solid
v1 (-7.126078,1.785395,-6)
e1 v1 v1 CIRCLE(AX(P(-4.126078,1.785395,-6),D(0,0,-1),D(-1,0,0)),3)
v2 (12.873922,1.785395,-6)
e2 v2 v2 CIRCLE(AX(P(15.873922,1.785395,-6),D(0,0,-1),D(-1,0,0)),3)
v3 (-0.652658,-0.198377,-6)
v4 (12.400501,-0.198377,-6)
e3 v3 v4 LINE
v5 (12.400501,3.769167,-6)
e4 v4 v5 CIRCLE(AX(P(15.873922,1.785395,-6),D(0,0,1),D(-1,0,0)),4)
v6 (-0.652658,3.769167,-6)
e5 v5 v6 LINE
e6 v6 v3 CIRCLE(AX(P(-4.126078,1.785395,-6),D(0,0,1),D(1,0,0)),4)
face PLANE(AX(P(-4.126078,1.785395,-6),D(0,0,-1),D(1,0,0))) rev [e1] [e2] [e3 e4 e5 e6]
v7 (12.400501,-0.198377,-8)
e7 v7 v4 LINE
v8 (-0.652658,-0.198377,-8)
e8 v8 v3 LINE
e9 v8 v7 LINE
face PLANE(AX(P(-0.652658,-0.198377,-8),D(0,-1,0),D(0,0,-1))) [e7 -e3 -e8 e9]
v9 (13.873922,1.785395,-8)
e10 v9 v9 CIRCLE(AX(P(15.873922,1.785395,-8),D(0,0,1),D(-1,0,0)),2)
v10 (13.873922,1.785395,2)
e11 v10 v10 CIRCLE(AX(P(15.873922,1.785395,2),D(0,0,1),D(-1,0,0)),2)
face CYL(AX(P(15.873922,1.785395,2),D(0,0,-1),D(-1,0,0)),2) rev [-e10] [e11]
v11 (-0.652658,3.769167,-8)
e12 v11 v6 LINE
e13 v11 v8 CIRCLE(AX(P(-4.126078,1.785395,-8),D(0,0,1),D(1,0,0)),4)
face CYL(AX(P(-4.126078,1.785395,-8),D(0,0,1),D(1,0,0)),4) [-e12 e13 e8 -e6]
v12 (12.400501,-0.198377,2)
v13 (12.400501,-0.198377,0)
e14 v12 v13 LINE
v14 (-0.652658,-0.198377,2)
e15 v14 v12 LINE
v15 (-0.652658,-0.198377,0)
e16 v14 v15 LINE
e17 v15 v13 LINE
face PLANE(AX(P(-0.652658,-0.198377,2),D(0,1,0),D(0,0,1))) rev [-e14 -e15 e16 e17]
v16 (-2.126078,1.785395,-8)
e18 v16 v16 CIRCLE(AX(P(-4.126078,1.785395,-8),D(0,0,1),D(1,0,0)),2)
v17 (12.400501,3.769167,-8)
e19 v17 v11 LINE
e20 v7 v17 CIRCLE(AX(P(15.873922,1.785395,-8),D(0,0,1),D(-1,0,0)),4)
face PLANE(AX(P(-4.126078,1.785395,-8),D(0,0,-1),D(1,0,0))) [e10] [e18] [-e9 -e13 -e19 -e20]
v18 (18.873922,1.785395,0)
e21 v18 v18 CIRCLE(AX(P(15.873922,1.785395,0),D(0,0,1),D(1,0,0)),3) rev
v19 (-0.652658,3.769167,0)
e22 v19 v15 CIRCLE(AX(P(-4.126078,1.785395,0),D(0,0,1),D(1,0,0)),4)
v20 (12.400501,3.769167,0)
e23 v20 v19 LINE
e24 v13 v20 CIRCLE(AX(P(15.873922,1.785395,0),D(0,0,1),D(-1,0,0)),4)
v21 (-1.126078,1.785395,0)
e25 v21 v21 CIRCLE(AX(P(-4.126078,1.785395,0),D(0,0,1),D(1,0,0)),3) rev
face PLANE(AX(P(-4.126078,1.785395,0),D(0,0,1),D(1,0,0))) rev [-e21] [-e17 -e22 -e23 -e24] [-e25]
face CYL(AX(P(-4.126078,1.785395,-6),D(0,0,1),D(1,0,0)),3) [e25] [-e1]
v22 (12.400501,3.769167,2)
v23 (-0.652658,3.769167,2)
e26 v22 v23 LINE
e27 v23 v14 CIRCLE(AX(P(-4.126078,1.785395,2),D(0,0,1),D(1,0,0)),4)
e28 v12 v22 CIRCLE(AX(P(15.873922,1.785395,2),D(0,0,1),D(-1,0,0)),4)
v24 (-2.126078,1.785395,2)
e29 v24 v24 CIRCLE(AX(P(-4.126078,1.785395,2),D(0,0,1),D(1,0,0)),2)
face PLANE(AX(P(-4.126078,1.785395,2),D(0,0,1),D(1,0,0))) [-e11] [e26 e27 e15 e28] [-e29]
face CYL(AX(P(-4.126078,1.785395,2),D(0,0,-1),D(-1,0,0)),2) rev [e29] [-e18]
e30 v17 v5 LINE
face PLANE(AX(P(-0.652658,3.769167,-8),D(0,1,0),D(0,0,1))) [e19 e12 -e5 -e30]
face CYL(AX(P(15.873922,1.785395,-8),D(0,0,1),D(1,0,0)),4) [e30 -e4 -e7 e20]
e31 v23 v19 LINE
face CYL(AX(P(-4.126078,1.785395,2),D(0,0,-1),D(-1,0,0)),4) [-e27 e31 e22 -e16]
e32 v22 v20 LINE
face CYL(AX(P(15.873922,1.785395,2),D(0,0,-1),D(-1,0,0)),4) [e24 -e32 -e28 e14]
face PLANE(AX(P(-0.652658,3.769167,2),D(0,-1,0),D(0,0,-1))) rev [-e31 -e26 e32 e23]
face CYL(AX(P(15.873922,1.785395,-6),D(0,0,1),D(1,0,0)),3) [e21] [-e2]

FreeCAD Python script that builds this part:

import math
import FreeCAD as App
import Part
import Sketcher
from FreeCAD import Vector
Q = App.Units.Quantity

doc = App.newDocument("Part")
params = doc.addObject("Spreadsheet::Sheet", "Params")
for row, (alias, value) in enumerate([
    ("sketch1_diameter", "4 mm"),
    ("sketch1_radius", "4 mm"),
    ("pad1_length", "2 mm"),
    ("sketch2_diameter", "6 mm"),
    ("sketch2_diameter2", "4 mm"),
    ("pad2_length", "6 mm"),
], start=1):
    params.set(f"A{row}", alias)
    params.set(f"B{row}", "=" + value)
    params.setAlias(f"B{row}", alias)

body = doc.addObject("PartDesign::Body", "Body")

# Sketch on XY plane
sketch1 = doc.addObject("Sketcher::SketchObject", "Sketch")
body.addObject(sketch1)
sketch1.AttachmentSupport = (doc.XY_Plane, [""])
sketch1.MapMode = "FlatFace"
sketch1.addGeometry(Part.LineSegment(Vector(12.4, 3.8, 0), Vector(-0.7, 3.8, 0)), False)
sketch1.addGeometry(Part.ArcOfCircle(Part.Circle(Vector(-4.1, 1.8, 0), Vector(0, 0, 1), 4), math.radians(30), math.radians(330)), False)
sketch1.addGeometry(Part.LineSegment(Vector(-0.7, -0.2, 0), Vector(12.4, -0.2, 0)), False)
sketch1.addGeometry(Part.ArcOfCircle(Part.Circle(Vector(15.9, 1.8, 0), Vector(0, 0, 1), 4), math.radians(-150), math.radians(150)), False)
sketch1.addGeometry(Part.Circle(Vector(15.9, 1.8, 0), Vector(0, 0, 1), 2), False)
sketch1.addGeometry(Part.Circle(Vector(-4.1, 1.8, 0), Vector(0, 0, 1), 2), False)
sketch1.addConstraint(Sketcher.Constraint("Coincident", 0, 2, 1, 1))
sketch1.addConstraint(Sketcher.Constraint("Coincident", 1, 2, 2, 1))
sketch1.addConstraint(Sketcher.Constraint("Coincident", 2, 2, 3, 1))
sketch1.addConstraint(Sketcher.Constraint("Coincident", 3, 2, 0, 1))
sketch1.addConstraint(Sketcher.Constraint("Horizontal", 0))
sketch1.addConstraint(Sketcher.Constraint("Horizontal", 2))
sketch1.addConstraint(Sketcher.Constraint("Coincident", 4, 3, 3, 3))
sketch1.addConstraint(Sketcher.Constraint("Coincident", 5, 3, 1, 3))
sketch1.addConstraint(Sketcher.Constraint("Equal", 1, 3))
sketch1.addConstraint(Sketcher.Constraint("Equal", 4, 5))
sketch1.addConstraint(Sketcher.Constraint("Horizontal", 1, 3, 3, 3))
sketch1.addConstraint(Sketcher.Constraint("Vertical", 0, 2, 1, 2))
sketch1.addConstraint(Sketcher.Constraint("Diameter", 4, Q("4 mm")))
sketch1.addConstraint(Sketcher.Constraint("Radius", 1, Q("4 mm")))
sketch1.addConstraint(Sketcher.Constraint("DistanceX", 1, 3, 3, 3, Q("20 mm")))
sketch1.addConstraint(Sketcher.Constraint("DistanceX", 0, 2, 0, 1, Q("13.053159 mm")))
sketch1.addConstraint(Sketcher.Constraint("DistanceX", -1, 1, 2, 2, Q("12.400501 mm")))
sketch1.addConstraint(Sketcher.Constraint("DistanceY", -1, 1, 1, 3, Q("1.785395 mm")))
sketch1.setExpression("Constraints[12]", "Params.sketch1_diameter")
sketch1.setExpression("Constraints[13]", "Params.sketch1_radius")
pad1 = doc.addObject("PartDesign::Pad", "Pad")
body.addObject(pad1)
pad1.Profile = sketch1
pad1.setExpression("Length", "Params.pad1_length")

# Sketch on XY plane
sketch2 = doc.addObject("Sketcher::SketchObject", "Sketch001")
body.addObject(sketch2)
sketch2.AttachmentSupport = (doc.XY_Plane, [""])
sketch2.MapMode = "FlatFace"
sketch2.AttachmentOffset = App.Placement(Vector(0, 0, -6), App.Rotation())
sketch2.addGeometry(Part.Circle(Vector(15.9, 1.8, 0), Vector(0, 0, 1), 3), False)
sketch2.addGeometry(Part.Circle(Vector(15.9, 1.8, 0), Vector(0, 0, 1), 2), False)
sketch2.addGeometry(Part.Circle(Vector(-4.1, 1.8, 0), Vector(0, 0, 1), 3), False)
sketch2.addGeometry(Part.Circle(Vector(-4.1, 1.8, 0), Vector(0, 0, 1), 2), False)
sketch2.addConstraint(Sketcher.Constraint("Coincident", 1, 3, 0, 3))
sketch2.addConstraint(Sketcher.Constraint("Coincident", 3, 3, 2, 3))
sketch2.addConstraint(Sketcher.Constraint("Equal", 0, 2))
sketch2.addConstraint(Sketcher.Constraint("Equal", 1, 3))
sketch2.addConstraint(Sketcher.Constraint("Horizontal", 1, 3, 2, 3))
sketch2.addConstraint(Sketcher.Constraint("Diameter", 0, Q("6 mm")))
sketch2.addConstraint(Sketcher.Constraint("Diameter", 1, Q("4 mm")))
sketch2.addConstraint(Sketcher.Constraint("DistanceX", 2, 3, 0, 3, Q("20 mm")))
sketch2.addConstraint(Sketcher.Constraint("DistanceX", -1, 1, 0, 3, Q("15.873922 mm")))
sketch2.addConstraint(Sketcher.Constraint("DistanceY", -1, 1, 0, 3, Q("1.785395 mm")))
sketch2.setExpression("Constraints[5]", "Params.sketch2_diameter")
sketch2.setExpression("Constraints[6]", "Params.sketch2_diameter2")
pad2 = doc.addObject("PartDesign::Pad", "Pad001")
body.addObject(pad2)
pad2.Profile = sketch2
pad2.setExpression("Length", "Params.pad2_length")
doc.recompute()

datumplane = doc.addObject("PartDesign::Plane", "DatumPlane")
body.addObject(datumplane)
datumplane.AttachmentSupport = (doc.XY_Plane, [""])
datumplane.MapMode = "FlatFace"
datumplane.AttachmentOffset = App.Placement(Vector(0, 0, -3), App.Rotation())
mirrored = doc.addObject("PartDesign::Mirrored", "Mirrored")
body.addObject(mirrored)
mirrored.Originals = [pad1]
mirrored.MirrorPlane = (datumplane, [""])
body.Tip = mirrored

doc.recompute()
